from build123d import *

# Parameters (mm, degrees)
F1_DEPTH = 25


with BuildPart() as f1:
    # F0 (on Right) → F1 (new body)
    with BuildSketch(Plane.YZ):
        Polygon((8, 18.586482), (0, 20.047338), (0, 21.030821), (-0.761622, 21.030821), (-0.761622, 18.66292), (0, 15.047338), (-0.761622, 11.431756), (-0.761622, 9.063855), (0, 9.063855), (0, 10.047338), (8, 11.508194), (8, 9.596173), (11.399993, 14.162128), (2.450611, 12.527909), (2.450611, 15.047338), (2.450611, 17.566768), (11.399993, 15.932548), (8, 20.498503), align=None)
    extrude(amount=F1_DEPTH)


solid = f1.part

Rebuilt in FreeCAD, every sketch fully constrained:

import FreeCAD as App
import Part
import Sketcher
Q = App.Units.Quantity


def add_polygon(sketch, points):
    """Adds a closed chain of lines whose ends are joined by coincident constraints."""
    first, n = sketch.GeometryCount, len(points)
    for a, b in zip(points, points[1:] + points[:1]):
        sketch.addGeometry(Part.LineSegment(App.Vector(*a, 0), App.Vector(*b, 0)), False)
    for i in range(n):
        sketch.addConstraint(Sketcher.Constraint("Coincident", first + i, 2, first + (i + 1) % n, 1))

doc = App.newDocument("Part")
params = doc.addObject("Spreadsheet::Sheet", "Params")
for row, (alias, value) in enumerate([
    ("pad1_length", "25 mm"),
], start=1):
    params.set(f"A{row}", alias)
    params.set(f"B{row}", "=" + value)
    params.setAlias(f"B{row}", alias)

body = doc.addObject("PartDesign::Body", "Body")

# Sketch on YZ plane
sketch1 = body.newObject("Sketcher::SketchObject", "Sketch")
sketch1.AttachmentSupport = (doc.getObject("YZ_Plane"), [""])
sketch1.MapMode = "FlatFace"
add_polygon(sketch1, [(8, 18.586482), (0, 20.047338), (0, 21.030821), (-0.761622, 21.030821), (-0.761622, 18.66292), (0, 15.047338), (-0.761622, 11.431756), (-0.761622, 9.063855), (0, 9.063855), (0, 10.047338), (8, 11.508194), (8, 9.596173), (11.399993, 14.162128), (2.450611, 12.527909), (2.450611, 17.566768), (11.399993, 15.932548), (8, 20.498503)])  # lines 0-16
sketch1.addConstraint([
    Sketcher.Constraint("Vertical", 1),
    Sketcher.Constraint("Horizontal", 2),
    Sketcher.Constraint("Vertical", 3),
    Sketcher.Constraint("Vertical", 6),
    Sketcher.Constraint("Horizontal", 7),
    Sketcher.Constraint("Vertical", 8),
    Sketcher.Constraint("Vertical", 10),
    Sketcher.Constraint("Vertical", 13),
    Sketcher.Constraint("Vertical", 16),
    Sketcher.Constraint("PointOnObject", 0, 2, -2),
    Sketcher.Constraint("PointOnObject", 4, 2, -2),
    Sketcher.Constraint("PointOnObject", 7, 2, -2),
    Sketcher.Constraint("Parallel", 9, 12),
    Sketcher.Constraint("Parallel", 0, 14),
    Sketcher.Constraint("Vertical", 3, 2, 5, 2),
    Sketcher.Constraint("Vertical", 11, 2, 14, 2),
    Sketcher.Constraint("Vertical", 10, 2, 15, 2),
    Sketcher.Constraint("Equal", 3, 6),
    Sketcher.Constraint("Equal", 1, 8),
    Sketcher.Constraint("Equal", 10, 16),
    Sketcher.Constraint("Equal", 4, 5),
    Sketcher.Constraint("Equal", 0, 9),
    Sketcher.Constraint("Equal", 11, 15),
    Sketcher.Constraint("DistanceX", -1, 1, 9, 2, Q("8 mm")),
    Sketcher.Constraint("DistanceY", 4, 2, 0, 2, Q("5 mm")),
    Sketcher.Constraint("DistanceY", 3, 2, 3, 1, Q("2.367901 mm")),
    Sketcher.Constraint("DistanceY", 10, 2, 10, 1, Q("1.912021 mm")),
    Sketcher.Constraint("DistanceY", 13, 1, 13, 2, Q("5.038859 mm")),
    Sketcher.Constraint("Distance", 4, Q("3.694929 mm")),
    Sketcher.Constraint("Distance", 12, Q("9.097368 mm")),
    Sketcher.Constraint("DistanceX", 2, 2, 2, 1, Q("0.761622 mm")),
    Sketcher.Constraint("DistanceY", -1, 1, 0, 2, Q("20.047338 mm")),
    Sketcher.Constraint("DistanceX", -1, 1, 12, 2, Q("2.450611 mm")),
    Sketcher.Constraint("DistanceY", -1, 1, 16, 2, Q("18.586482 mm")),
])
pad1 = body.newObject("PartDesign::Pad", "Pad")
pad1.Profile = sketch1
pad1.setExpression("Length", "Params.pad1_length")

doc.recompute()
